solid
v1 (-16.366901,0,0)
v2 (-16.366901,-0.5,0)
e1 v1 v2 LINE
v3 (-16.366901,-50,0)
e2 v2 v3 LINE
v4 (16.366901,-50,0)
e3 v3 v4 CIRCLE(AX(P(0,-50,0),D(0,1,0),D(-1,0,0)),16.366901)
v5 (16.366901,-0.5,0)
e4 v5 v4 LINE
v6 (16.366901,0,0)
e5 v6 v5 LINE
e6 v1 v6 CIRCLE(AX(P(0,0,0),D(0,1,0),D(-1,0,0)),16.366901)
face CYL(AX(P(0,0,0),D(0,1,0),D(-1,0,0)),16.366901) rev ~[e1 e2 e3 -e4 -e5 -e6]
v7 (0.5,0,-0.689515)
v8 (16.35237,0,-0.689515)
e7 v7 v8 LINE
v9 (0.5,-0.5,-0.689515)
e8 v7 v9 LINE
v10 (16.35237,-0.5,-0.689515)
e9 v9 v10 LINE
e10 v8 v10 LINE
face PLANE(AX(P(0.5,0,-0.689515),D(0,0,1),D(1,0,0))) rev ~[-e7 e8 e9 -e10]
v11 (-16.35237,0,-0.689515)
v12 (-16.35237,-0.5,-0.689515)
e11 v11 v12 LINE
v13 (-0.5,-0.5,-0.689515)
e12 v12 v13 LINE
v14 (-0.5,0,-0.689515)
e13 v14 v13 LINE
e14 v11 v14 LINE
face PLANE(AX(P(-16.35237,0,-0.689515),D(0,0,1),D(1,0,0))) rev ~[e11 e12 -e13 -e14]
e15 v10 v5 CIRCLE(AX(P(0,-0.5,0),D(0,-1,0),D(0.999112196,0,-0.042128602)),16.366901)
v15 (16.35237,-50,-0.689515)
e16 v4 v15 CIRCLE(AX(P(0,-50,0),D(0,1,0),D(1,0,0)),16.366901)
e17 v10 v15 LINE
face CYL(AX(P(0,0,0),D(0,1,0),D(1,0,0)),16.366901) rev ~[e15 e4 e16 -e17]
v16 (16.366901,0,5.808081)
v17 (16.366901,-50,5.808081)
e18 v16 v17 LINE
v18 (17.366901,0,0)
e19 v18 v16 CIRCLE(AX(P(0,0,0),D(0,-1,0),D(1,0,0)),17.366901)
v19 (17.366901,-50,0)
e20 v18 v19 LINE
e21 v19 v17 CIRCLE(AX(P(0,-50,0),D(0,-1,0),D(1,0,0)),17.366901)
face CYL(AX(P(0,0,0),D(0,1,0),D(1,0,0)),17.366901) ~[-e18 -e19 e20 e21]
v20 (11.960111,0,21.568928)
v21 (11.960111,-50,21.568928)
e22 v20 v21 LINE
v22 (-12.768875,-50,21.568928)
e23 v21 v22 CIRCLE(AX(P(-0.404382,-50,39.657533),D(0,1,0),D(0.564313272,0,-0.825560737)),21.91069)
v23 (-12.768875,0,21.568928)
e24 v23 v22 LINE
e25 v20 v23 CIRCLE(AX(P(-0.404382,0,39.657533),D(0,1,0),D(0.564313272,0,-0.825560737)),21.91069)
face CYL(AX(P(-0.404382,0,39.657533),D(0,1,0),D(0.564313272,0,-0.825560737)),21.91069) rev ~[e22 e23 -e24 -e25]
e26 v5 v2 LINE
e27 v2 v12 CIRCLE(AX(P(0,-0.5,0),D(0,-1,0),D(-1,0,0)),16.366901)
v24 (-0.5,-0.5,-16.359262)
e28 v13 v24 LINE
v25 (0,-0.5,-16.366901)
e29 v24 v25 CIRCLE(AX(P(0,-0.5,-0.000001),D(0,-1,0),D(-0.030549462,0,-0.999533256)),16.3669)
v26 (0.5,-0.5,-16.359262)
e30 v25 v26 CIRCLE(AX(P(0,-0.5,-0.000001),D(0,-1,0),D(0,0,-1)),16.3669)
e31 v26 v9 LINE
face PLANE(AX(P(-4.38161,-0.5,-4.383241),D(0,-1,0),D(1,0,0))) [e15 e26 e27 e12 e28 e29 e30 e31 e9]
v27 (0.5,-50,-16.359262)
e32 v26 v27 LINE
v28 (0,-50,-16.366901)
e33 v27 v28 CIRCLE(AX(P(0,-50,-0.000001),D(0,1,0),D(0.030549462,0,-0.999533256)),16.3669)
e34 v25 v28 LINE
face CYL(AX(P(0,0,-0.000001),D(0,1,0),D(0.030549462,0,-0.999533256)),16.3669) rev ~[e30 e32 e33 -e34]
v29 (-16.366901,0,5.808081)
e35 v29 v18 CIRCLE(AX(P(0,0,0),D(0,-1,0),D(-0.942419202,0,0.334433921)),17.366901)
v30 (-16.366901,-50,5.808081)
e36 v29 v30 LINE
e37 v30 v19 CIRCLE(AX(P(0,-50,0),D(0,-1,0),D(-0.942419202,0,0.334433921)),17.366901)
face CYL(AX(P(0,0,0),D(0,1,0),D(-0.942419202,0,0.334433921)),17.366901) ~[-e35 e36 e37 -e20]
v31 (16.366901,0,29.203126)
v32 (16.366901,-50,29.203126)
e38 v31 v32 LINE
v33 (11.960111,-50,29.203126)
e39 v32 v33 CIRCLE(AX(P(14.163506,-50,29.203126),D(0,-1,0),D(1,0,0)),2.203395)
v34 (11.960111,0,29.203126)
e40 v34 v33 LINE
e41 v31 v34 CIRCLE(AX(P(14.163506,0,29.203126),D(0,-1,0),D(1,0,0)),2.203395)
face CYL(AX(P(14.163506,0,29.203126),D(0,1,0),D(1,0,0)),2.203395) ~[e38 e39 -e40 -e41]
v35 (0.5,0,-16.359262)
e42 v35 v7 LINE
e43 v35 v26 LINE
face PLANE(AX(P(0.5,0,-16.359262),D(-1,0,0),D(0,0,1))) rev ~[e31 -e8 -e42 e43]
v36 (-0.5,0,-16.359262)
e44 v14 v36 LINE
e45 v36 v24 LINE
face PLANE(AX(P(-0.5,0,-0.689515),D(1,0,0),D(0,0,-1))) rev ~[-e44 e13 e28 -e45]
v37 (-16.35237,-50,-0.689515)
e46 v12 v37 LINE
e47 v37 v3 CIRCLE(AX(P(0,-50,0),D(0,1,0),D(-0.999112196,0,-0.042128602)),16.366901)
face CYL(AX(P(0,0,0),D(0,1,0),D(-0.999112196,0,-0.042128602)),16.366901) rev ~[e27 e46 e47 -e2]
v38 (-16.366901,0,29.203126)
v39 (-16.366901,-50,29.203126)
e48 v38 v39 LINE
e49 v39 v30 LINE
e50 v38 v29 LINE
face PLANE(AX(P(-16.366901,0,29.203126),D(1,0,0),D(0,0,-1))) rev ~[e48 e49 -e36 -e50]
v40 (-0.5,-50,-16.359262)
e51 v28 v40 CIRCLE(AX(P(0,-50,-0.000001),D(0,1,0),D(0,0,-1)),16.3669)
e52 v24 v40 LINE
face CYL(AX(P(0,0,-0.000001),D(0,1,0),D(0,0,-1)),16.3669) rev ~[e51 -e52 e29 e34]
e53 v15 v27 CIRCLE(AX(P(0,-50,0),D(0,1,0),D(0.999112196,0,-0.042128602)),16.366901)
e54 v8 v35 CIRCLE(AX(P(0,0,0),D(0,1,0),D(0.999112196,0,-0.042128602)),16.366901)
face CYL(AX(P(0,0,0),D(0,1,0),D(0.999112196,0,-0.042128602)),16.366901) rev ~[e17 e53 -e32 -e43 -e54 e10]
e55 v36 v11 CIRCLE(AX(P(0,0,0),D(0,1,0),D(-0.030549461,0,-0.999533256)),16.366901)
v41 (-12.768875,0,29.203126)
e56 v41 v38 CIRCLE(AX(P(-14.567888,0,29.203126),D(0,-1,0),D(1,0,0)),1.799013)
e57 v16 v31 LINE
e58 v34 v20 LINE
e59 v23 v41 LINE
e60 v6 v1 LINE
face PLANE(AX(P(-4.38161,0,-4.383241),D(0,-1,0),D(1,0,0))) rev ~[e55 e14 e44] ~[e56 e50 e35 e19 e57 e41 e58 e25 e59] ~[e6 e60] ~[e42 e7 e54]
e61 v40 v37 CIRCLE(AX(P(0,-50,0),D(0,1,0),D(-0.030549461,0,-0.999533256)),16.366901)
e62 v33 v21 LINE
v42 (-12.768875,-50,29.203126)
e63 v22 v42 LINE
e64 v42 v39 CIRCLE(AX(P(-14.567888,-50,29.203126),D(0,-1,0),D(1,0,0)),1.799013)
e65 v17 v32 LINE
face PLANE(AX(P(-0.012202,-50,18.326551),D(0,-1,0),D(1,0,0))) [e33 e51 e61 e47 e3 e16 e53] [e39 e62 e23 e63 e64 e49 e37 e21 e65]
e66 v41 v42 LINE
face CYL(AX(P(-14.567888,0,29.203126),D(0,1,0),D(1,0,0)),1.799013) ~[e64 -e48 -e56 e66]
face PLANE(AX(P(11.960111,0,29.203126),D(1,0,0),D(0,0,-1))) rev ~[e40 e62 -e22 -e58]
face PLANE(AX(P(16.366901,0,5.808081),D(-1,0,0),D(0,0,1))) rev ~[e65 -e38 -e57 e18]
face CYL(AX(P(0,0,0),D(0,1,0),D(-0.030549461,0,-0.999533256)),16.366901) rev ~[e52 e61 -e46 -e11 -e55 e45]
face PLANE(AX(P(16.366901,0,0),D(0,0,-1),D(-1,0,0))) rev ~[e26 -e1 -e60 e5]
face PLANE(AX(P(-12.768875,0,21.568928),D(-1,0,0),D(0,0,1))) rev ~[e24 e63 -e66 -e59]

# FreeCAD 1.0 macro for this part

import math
import FreeCAD as App
import Part
import Sketcher

doc = App.newDocument("Part")
body = doc.addObject("PartDesign::Body", "Body")

# Sketch on XZ plane
sketch1 = body.newObject("Sketcher::SketchObject", "Sketch")
sketch1.AttachmentSupport = (doc.getObject("XZ_Plane"), [""])
sketch1.MapMode = "FlatFace"
sketch1.addGeometry([
    Part.ArcOfCircle(Part.Circle(App.Vector(14.2, 29.2, 0), App.Vector(0, 0, 1), 2.2), math.radians(0), math.radians(180)),  # 0
    Part.LineSegment(App.Vector(12, 29.2, 0), App.Vector(12, 21.6, 0)),  # 1
    Part.ArcOfCircle(Part.Circle(App.Vector(-0.4, 39.7, 0), App.Vector(0, 0, 1), 21.9), math.radians(-124), math.radians(-56)),  # 2
    Part.LineSegment(App.Vector(-12.8, 21.6, 0), App.Vector(-12.8, 29.2, 0)),  # 3
    Part.ArcOfCircle(Part.Circle(App.Vector(-14.6, 29.2, 0), App.Vector(0, 0, 1), 1.8), math.radians(0), math.radians(180)),  # 4
    Part.LineSegment(App.Vector(-16.4, 29.2, 0), App.Vector(-16.4, 5.8, 0)),  # 5
    Part.ArcOfCircle(Part.Circle(App.Vector(0, 0, 0), App.Vector(0, 0, 1), 17.4), math.radians(160), math.radians(360)),  # 6
    Part.ArcOfCircle(Part.Circle(App.Vector(0, 0, 0), App.Vector(0, 0, 1), 17.4), math.radians(0), math.radians(19.54)),  # 7
    Part.LineSegment(App.Vector(16.4, 5.8, 0), App.Vector(16.4, 29.2, 0)),  # 8
    Part.ArcOfCircle(Part.Circle(App.Vector(0, 0, 0), App.Vector(0, 0, 1), 16.4), math.radians(0), math.radians(180)),  # 9
    Part.ArcOfCircle(Part.Circle(App.Vector(0, 0, 0), App.Vector(0, 0, 1), 16.4), math.radians(-2.41), math.radians(0)),  # 10
    Part.ArcOfCircle(Part.Circle(App.Vector(0, 0, 0), App.Vector(0, 0, 1), 16.4), math.radians(-88), math.radians(-2)),  # 11
    Part.ArcOfCircle(Part.Circle(App.Vector(0, 0, 0), App.Vector(0, 0, 1), 16.4), math.radians(-90), math.radians(-88.25)),  # 12
    Part.ArcOfCircle(Part.Circle(App.Vector(0, 0, 0), App.Vector(0, 0, 1), 16.4), math.radians(-91.75), math.radians(-90)),  # 13
    Part.ArcOfCircle(Part.Circle(App.Vector(0, 0, 0), App.Vector(0, 0, 1), 16.4), math.radians(-178), math.radians(-92)),  # 14
    Part.ArcOfCircle(Part.Circle(App.Vector(0, 0, 0), App.Vector(0, 0, 1), 16.4), math.radians(180), math.radians(182.41)),  # 15
], False)
sketch1.addConstraint([
    Sketcher.Constraint("Tangent", 0, 2, 1, 1),
    Sketcher.Constraint("Coincident", 1, 2, 2, 2),
    Sketcher.Constraint("Coincident", 2, 1, 3, 1),
    Sketcher.Constraint("Tangent", 3, 2, 4, 1),
    Sketcher.Constraint("Tangent", 4, 2, 5, 1),
    Sketcher.Constraint("Coincident", 5, 2, 6, 1),
    Sketcher.Constraint("Tangent", 6, 2, 7, 1),
    Sketcher.Constraint("Coincident", 7, 2, 8, 1),
    Sketcher.Constraint("Tangent", 8, 2, 0, 1),
    Sketcher.Constraint("Tangent", 9, 1, 10, 2),
    Sketcher.Constraint("Tangent", 10, 1, 11, 2),
    Sketcher.Constraint("Tangent", 11, 1, 12, 2),
    Sketcher.Constraint("Tangent", 12, 1, 13, 2),
    Sketcher.Constraint("Tangent", 13, 1, 14, 2),
    Sketcher.Constraint("Tangent", 14, 1, 15, 2),
    Sketcher.Constraint("Tangent", 15, 1, 9, 2),
    Sketcher.Constraint("Vertical", 1),
    Sketcher.Constraint("Vertical", 3),
    Sketcher.Constraint("Vertical", 5),
    Sketcher.Constraint("Vertical", 8),
    Sketcher.Constraint("Coincident", 6, 3, -1, 1),
    Sketcher.Constraint("Coincident", 9, 3, -1, 1),
    Sketcher.Constraint("Coincident", 11, 3, -1, 1),
    Sketcher.Constraint("Coincident", 13, 3, -1, 1),
    Sketcher.Constraint("Equal", 6, 7),
    Sketcher.Constraint("Symmetric", 4, 2, 8, 2, -2),
    Sketcher.Constraint("PointOnObject", 6, 2, -1),
    Sketcher.Constraint("PointOnObject", 9, 1, -1),
    Sketcher.Constraint("PointOnObject", 12, 1, -2),
    Sketcher.Constraint("PointOnObject", 15, 1, -1),
    Sketcher.Constraint("Horizontal", 1, 2, 2, 1),
    Sketcher.Constraint("Horizontal", 11, 1, 13, 1),
    Sketcher.Constraint("Horizontal", 10, 1, 14, 1),
    Sketcher.Constraint("Vertical", 8, 2, 9, 1),
    Sketcher.Constraint("DistanceX", 7, 2, 6, 2, 1.0),
    Sketcher.Constraint("DistanceX", 13, 1, 11, 1, 1.0),
    Sketcher.Constraint("Radius", 6, 17.366901),
    Sketcher.Constraint("Radius", 2, 21.91069),
    Sketcher.Constraint("DistanceY", 1, 2, 1, 1, 7.634198),
    Sketcher.Constraint("Radius", 0, 2.203395),
    Sketcher.Constraint("Radius", 4, 1.799013),
    Sketcher.Constraint("DistanceY", 5, 2, 5, 1, 23.395046),
    Sketcher.Constraint("DistanceX", -1, 1, 10, 1, 16.35237),
])
pad1 = body.newObject("PartDesign::Pad", "Pad")
pad1.Profile = sketch1
pad1.Length = 50

# Sketch on XZ plane
sketch2 = body.newObject("Sketcher::SketchObject", "Sketch001")
sketch2.AttachmentSupport = (doc.getObject("XZ_Plane"), [""])
sketch2.MapMode = "FlatFace"
sketch2.addGeometry([
    Part.ArcOfCircle(Part.Circle(App.Vector(0, 0, 0), App.Vector(0, 0, 1), 16.4), math.radians(180), math.radians(182.41)),  # 0
    Part.LineSegment(App.Vector(-16.4, -0.7, 0), App.Vector(-0.5, -0.7, 0)),  # 1
    Part.LineSegment(App.Vector(-0.5, -0.7, 0), App.Vector(-0.5, -16.4, 0)),  # 2
    Part.ArcOfCircle(Part.Circle(App.Vector(0, 0, 0), App.Vector(0, 0, 1), 16.4), math.radians(-91.75), math.radians(-90)),  # 3
    Part.ArcOfCircle(Part.Circle(App.Vector(0, 0, 0), App.Vector(0, 0, 1), 16.4), math.radians(-90), math.radians(-88.25)),  # 4
    Part.LineSegment(App.Vector(0.5, -16.4, 0), App.Vector(0.5, -0.7, 0)),  # 5
    Part.LineSegment(App.Vector(0.5, -0.7, 0), App.Vector(16.4, -0.7, 0)),  # 6
    Part.ArcOfCircle(Part.Circle(App.Vector(0, 0, 0), App.Vector(0, 0, 1), 16.4), math.radians(-2.41), math.radians(0)),  # 7
    Part.LineSegment(App.Vector(16.4, 0, 0), App.Vector(-16.4, 0, 0)),  # 8
], False)
sketch2.addConstraint([
    Sketcher.Constraint("Coincident", 0, 2, 1, 1),
    Sketcher.Constraint("Coincident", 1, 2, 2, 1),
    Sketcher.Constraint("Coincident", 2, 2, 3, 1),
    Sketcher.Constraint("Tangent", 3, 2, 4, 1),
    Sketcher.Constraint("Coincident", 4, 2, 5, 1),
    Sketcher.Constraint("Coincident", 5, 2, 6, 1),
    Sketcher.Constraint("Coincident", 6, 2, 7, 1),
    Sketcher.Constraint("Coincident", 7, 2, 8, 1),
    Sketcher.Constraint("Coincident", 8, 2, 0, 1),
    Sketcher.Constraint("Horizontal", 1),
    Sketcher.Constraint("Vertical", 2),
    Sketcher.Constraint("Vertical", 5),
    Sketcher.Constraint("Horizontal", 6),
    Sketcher.Constraint("Horizontal", 8),
    Sketcher.Constraint("Coincident", 0, 3, -1, 1),
    Sketcher.Constraint("Coincident", 3, 3, -1, 1),
    Sketcher.Constraint("Coincident", 7, 3, -1, 1),
    Sketcher.Constraint("Equal", 0, 3),
    Sketcher.Constraint("Equal", 3, 4),
    Sketcher.Constraint("Equal", 4, 7),
    Sketcher.Constraint("Symmetric", 1, 2, 5, 2, -2),
    Sketcher.Constraint("PointOnObject", 3, 2, -2),
    Sketcher.Constraint("PointOnObject", 7, 2, -1),
    Sketcher.Constraint("DistanceX", 2, 2, 4, 2, 1.0),
    Sketcher.Constraint("Radius", 0, 16.366901),
    Sketcher.Constraint("DistanceX", 1, 1, 1, 2, 15.85237),
])
pad2 = body.newObject("PartDesign::Pad", "Pad001")
pad2.Profile = sketch2
pad2.Length = 0.5

doc.recompute()
